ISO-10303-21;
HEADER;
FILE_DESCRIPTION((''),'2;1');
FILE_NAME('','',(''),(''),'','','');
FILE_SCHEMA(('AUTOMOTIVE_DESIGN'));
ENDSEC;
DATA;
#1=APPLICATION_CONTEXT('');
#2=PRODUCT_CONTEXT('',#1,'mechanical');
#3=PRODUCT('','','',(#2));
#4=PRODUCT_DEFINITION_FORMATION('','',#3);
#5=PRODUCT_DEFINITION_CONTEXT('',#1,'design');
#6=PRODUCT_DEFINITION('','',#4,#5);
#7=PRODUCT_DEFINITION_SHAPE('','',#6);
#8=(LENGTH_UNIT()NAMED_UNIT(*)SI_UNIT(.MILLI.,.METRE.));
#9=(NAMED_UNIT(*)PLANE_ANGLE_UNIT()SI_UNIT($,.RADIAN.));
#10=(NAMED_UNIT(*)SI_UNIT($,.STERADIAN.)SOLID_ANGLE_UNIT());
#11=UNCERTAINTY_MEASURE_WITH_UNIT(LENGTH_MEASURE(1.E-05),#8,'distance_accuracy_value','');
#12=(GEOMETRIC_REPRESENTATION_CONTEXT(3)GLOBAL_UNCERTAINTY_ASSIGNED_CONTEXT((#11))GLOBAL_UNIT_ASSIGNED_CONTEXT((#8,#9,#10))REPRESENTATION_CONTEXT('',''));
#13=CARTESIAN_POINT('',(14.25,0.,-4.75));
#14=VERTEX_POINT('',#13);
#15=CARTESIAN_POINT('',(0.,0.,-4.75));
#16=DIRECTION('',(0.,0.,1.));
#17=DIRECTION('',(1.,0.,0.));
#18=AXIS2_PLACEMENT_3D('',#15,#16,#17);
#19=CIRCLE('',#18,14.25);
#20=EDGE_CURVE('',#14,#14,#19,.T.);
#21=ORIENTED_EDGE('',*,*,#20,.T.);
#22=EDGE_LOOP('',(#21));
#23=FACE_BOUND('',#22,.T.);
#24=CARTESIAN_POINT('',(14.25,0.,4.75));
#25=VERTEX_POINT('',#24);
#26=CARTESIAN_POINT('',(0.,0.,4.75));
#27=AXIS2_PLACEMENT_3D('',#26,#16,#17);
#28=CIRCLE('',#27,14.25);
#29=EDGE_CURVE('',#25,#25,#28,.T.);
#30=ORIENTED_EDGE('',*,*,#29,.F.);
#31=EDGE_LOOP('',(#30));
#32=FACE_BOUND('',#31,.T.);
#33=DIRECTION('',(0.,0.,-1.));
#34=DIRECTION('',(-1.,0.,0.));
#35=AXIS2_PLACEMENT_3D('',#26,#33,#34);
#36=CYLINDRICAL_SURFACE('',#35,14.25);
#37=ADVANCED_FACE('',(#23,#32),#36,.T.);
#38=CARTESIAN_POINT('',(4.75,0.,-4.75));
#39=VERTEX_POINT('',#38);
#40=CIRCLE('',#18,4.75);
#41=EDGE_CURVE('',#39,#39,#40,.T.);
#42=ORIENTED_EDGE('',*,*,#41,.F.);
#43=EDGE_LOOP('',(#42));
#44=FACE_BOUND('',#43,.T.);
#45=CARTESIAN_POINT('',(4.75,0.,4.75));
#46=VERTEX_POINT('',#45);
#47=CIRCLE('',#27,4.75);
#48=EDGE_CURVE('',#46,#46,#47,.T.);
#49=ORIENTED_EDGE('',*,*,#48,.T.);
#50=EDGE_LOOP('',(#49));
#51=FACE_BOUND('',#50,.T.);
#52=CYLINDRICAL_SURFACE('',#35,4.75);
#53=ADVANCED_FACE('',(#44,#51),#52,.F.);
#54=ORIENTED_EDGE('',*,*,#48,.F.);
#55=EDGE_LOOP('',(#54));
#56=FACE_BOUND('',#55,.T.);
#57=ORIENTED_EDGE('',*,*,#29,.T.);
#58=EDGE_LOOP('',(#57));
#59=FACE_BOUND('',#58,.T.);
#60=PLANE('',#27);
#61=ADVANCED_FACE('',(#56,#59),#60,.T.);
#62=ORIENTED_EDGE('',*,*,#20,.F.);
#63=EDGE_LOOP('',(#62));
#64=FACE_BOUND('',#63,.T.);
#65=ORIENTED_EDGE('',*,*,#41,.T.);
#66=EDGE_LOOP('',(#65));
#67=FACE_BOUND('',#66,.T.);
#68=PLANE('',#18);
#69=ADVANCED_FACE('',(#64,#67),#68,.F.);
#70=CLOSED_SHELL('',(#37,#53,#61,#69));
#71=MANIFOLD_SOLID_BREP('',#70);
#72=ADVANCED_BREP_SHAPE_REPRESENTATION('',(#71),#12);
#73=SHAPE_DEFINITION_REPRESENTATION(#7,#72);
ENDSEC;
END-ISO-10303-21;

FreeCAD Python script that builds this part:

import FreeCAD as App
import Part
import Sketcher
from FreeCAD import Vector
Q = App.Units.Quantity

doc = App.newDocument("Part")
body = doc.addObject("PartDesign::Body", "Body")

sketch1 = doc.addObject("Sketcher::SketchObject", "Sketch")
body.addObject(sketch1)
sketch1.AttachmentSupport = (doc.XY_Plane, [""])
sketch1.MapMode = "FlatFace"
sketch1.addGeometry([
    Part.Circle(Vector(0, 0, 0), Vector(0, 0, 1), 14.2),
    Part.Circle(Vector(0, 0, 0), Vector(0, 0, 1), 4.8),
], False)
sketch1.addConstraint([
    Sketcher.Constraint("Coincident", 0, 3, -1, 1),
    Sketcher.Constraint("Coincident", 1, 3, -1, 1),
    Sketcher.Constraint("Diameter", 0, Q("28.5 mm")),
    Sketcher.Constraint("Diameter", 1, Q("9.5 mm")),
])
pad1 = doc.addObject("PartDesign::Pad", "Pad")
body.addObject(pad1)
pad1.Profile = sketch1
pad1.Length = 9.5
pad1.Midplane = True

doc.recompute()
